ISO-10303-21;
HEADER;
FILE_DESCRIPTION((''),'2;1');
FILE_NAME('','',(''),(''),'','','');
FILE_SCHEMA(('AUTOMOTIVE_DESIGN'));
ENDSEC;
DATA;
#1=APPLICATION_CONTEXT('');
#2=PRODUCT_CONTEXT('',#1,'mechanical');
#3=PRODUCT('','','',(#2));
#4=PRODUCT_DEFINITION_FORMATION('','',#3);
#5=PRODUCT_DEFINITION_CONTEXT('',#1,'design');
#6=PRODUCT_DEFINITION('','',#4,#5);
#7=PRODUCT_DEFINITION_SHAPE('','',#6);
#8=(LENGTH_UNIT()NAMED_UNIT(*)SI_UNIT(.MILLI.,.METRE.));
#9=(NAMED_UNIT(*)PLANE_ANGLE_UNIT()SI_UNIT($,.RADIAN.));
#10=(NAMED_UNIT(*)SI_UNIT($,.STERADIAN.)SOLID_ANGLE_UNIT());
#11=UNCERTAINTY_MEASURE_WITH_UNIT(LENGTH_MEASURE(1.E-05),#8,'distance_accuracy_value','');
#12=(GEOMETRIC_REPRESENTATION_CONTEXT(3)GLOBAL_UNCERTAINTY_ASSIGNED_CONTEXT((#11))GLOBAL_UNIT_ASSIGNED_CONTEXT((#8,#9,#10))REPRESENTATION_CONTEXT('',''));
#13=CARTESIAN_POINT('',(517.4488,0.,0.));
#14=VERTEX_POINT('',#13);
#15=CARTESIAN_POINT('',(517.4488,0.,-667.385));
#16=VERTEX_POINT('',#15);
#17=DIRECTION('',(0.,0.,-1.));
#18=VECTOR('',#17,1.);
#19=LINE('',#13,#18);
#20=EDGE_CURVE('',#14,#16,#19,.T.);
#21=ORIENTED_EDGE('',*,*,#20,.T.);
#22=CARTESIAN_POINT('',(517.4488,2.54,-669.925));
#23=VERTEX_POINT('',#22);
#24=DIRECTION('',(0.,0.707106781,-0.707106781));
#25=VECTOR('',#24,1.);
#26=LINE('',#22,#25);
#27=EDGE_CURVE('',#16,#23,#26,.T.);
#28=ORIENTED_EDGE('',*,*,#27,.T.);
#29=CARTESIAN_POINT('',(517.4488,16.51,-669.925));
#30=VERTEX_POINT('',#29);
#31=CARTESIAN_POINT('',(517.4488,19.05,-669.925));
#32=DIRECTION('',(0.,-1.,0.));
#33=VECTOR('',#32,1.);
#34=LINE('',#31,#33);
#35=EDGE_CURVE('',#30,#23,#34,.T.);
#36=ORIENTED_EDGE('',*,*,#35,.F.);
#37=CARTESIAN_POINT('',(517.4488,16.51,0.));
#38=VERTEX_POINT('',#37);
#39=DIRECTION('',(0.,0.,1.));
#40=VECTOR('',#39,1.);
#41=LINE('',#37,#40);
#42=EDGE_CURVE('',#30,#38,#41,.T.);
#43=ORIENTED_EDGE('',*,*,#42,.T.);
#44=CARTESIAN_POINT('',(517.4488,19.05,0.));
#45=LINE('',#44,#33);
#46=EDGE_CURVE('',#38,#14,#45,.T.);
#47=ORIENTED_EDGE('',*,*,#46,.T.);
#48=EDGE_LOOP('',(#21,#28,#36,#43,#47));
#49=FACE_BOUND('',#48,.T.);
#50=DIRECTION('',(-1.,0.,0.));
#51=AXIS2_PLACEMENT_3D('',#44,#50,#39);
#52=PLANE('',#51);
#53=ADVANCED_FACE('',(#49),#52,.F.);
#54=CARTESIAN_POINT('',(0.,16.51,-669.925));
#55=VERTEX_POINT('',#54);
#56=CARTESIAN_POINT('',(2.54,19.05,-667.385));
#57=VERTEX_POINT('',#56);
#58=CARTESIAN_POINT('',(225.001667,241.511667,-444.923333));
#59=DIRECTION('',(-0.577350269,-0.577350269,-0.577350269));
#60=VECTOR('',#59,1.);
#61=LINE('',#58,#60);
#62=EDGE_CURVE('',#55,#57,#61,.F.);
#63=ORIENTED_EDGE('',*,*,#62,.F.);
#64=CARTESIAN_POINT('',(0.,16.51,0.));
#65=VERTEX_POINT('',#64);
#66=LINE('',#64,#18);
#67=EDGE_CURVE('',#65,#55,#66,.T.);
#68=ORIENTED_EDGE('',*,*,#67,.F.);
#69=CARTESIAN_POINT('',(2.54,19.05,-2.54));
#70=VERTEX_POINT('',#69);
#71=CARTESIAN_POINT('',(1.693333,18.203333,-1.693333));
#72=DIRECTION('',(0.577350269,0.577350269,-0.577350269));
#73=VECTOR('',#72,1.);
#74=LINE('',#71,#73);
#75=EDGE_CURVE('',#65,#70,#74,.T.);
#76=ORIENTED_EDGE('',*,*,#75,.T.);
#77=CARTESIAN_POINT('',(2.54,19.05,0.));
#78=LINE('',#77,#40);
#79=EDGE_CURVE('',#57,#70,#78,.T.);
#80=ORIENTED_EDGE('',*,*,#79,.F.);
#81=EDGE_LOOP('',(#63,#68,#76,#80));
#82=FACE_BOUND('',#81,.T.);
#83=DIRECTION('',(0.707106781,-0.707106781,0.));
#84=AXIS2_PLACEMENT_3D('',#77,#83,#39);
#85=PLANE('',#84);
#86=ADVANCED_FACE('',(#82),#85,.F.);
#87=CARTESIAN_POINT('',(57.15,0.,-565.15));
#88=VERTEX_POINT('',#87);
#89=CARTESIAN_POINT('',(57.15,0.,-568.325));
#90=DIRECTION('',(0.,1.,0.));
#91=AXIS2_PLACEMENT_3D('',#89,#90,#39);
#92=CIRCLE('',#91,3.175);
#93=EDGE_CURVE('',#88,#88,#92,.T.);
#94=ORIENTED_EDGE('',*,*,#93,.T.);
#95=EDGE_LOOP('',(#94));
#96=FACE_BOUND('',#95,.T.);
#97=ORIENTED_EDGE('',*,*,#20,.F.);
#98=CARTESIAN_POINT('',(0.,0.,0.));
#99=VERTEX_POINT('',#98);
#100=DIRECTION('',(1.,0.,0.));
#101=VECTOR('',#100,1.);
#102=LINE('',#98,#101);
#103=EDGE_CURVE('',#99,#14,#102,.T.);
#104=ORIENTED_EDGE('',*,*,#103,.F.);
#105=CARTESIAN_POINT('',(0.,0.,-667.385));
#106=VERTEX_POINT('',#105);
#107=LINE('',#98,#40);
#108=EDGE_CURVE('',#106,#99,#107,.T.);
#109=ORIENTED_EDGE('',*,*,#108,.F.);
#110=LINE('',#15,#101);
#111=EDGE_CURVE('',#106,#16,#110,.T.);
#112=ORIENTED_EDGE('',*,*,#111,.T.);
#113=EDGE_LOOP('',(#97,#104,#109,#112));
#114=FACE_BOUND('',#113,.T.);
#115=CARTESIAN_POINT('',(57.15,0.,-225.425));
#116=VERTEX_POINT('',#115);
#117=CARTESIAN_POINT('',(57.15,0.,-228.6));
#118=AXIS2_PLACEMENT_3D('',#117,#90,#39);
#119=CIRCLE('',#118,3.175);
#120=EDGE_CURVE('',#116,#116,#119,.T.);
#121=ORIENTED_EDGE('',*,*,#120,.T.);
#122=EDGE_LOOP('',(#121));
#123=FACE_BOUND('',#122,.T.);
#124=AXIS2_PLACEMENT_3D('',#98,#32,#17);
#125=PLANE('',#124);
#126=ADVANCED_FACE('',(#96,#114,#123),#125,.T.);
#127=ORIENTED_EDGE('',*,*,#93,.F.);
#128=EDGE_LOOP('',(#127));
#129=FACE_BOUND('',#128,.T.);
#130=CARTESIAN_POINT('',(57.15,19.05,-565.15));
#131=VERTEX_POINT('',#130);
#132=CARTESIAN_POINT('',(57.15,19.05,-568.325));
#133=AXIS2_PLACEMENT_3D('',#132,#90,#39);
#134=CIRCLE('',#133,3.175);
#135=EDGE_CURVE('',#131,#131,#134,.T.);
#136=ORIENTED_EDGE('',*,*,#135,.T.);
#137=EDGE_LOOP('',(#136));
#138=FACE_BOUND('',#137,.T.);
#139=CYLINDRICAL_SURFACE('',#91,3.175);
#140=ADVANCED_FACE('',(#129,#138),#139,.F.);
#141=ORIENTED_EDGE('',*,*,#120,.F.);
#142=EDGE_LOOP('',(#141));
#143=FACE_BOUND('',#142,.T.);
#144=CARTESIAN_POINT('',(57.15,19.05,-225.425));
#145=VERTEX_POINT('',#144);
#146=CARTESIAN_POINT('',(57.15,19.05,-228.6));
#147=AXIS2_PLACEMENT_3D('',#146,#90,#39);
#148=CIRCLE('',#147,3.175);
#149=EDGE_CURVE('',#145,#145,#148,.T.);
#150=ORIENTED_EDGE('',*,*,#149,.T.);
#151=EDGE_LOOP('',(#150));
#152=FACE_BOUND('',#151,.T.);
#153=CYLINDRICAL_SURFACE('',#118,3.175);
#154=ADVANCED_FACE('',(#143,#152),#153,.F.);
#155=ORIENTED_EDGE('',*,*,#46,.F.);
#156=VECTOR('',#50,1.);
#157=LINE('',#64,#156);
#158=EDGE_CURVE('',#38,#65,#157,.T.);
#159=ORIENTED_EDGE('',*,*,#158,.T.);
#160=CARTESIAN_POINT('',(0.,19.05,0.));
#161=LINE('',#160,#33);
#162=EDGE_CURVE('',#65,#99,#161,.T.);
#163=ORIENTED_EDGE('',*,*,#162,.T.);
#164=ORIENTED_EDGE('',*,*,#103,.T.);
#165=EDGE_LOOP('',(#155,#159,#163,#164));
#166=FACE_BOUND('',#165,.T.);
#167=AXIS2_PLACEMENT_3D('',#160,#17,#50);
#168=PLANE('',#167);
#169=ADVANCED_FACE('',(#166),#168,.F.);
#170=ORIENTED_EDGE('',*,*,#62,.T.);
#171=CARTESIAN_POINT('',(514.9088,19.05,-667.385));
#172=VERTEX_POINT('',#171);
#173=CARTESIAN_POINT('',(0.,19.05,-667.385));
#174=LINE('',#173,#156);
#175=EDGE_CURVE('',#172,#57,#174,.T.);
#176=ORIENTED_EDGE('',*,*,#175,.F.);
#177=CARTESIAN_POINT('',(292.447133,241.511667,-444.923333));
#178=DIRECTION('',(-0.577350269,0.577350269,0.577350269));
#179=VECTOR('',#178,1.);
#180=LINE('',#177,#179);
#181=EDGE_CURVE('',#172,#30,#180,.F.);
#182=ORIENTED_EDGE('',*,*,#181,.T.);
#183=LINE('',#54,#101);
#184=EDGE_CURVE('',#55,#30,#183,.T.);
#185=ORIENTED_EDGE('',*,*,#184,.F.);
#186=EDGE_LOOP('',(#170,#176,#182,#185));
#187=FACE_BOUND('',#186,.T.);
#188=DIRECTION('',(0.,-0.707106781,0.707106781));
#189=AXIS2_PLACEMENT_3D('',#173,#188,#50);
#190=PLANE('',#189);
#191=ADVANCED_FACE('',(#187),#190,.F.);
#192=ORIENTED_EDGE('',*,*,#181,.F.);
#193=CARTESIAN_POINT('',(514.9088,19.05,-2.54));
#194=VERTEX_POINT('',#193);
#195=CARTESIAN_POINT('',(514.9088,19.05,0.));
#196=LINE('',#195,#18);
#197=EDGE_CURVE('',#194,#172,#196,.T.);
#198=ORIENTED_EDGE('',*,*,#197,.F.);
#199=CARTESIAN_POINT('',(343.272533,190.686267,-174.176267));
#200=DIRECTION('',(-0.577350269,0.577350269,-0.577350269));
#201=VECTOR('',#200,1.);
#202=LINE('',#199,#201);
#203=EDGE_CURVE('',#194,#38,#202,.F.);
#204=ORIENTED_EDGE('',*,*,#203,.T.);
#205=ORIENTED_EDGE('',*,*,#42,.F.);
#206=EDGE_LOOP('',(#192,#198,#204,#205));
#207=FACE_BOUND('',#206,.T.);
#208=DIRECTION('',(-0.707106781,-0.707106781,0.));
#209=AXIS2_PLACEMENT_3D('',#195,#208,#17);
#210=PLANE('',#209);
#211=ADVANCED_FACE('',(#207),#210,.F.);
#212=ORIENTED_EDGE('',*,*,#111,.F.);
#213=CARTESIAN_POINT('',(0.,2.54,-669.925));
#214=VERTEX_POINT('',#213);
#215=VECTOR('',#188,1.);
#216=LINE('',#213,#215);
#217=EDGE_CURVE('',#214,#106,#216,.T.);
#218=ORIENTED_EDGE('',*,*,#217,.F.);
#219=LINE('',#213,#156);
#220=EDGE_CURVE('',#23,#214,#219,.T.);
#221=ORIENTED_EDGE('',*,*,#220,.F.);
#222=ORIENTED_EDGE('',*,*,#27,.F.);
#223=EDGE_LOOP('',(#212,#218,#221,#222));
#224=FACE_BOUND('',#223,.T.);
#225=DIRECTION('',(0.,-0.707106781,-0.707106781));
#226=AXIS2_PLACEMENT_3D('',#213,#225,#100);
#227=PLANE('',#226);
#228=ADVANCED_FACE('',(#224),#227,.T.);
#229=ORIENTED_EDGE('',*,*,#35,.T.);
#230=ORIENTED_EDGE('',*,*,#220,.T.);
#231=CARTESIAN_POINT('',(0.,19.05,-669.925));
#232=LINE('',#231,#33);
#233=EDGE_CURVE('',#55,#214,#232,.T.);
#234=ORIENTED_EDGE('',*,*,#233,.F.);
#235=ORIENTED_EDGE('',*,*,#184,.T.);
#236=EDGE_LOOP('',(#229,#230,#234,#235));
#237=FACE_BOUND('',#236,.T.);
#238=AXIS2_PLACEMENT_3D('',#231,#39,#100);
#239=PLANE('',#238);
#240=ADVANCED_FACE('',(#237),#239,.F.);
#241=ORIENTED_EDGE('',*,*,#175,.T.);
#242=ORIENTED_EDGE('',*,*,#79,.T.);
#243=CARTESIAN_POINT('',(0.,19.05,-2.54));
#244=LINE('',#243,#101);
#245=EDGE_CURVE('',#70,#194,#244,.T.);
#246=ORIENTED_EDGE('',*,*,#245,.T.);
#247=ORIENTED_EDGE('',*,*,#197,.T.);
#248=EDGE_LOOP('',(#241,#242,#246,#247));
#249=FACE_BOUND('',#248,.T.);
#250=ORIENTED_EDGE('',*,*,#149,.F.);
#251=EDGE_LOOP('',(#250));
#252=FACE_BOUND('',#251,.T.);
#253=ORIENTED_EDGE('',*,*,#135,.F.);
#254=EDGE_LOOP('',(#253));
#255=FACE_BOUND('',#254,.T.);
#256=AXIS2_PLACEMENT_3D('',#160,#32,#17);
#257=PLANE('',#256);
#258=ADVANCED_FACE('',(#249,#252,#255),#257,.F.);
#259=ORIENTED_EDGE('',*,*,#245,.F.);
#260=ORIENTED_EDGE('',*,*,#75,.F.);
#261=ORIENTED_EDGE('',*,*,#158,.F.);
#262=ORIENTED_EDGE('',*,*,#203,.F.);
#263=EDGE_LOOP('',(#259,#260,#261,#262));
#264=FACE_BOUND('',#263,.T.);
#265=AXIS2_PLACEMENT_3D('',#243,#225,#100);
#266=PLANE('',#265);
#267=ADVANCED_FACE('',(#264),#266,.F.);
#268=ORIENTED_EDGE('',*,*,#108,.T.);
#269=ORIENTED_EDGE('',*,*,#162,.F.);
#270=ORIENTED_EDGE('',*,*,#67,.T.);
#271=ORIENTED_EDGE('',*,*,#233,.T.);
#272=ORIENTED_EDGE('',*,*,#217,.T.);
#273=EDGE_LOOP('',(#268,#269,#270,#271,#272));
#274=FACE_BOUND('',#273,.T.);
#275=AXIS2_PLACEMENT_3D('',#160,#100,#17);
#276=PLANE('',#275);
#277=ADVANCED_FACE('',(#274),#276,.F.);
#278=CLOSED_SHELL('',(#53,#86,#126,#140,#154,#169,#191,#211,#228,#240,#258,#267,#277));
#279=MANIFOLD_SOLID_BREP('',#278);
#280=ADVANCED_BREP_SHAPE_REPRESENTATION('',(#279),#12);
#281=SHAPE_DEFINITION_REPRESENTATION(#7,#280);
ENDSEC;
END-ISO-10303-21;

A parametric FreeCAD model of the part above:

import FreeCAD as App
import Part
import Sketcher
from FreeCAD import Vector
Q = App.Units.Quantity


def edges_at(feature, points):
    """Names of the edges that pass closest to the given points."""
    edges = feature.Shape.Edges
    near = lambda p: min(range(len(edges)), key=lambda i: edges[i].distToShape(Part.Vertex(*p))[0])
    return sorted({f"Edge{near(p) + 1}" for p in points})

doc = App.newDocument("Part")
body = doc.addObject("PartDesign::Body", "Body")

sketch1 = body.newObject("Sketcher::SketchObject", "Sketch")
sketch1.AttachmentSupport = (doc.getObject("XZ_Plane"), [""])
sketch1.MapMode = "FlatFace"
sketch1.addGeometry(Part.LineSegment(Vector(0, -669.925, 0), Vector(0, 0, 0)), False)
sketch1.addGeometry(Part.LineSegment(Vector(0, 0, 0), Vector(517.4488, 0, 0)), False)
sketch1.addGeometry(Part.LineSegment(Vector(517.4488, 0, 0), Vector(517.4488, -669.925, 0)), False)
sketch1.addGeometry(Part.LineSegment(Vector(517.4488, -669.925, 0), Vector(0, -669.925, 0)), False)
sketch1.addConstraint(Sketcher.Constraint("Coincident", 0, 2, 1, 1))
sketch1.addConstraint(Sketcher.Constraint("Coincident", 1, 2, 2, 1))
sketch1.addConstraint(Sketcher.Constraint("Coincident", 2, 2, 3, 1))
sketch1.addConstraint(Sketcher.Constraint("Coincident", 3, 2, 0, 1))
sketch1.addConstraint(Sketcher.Constraint("Vertical", 0))
sketch1.addConstraint(Sketcher.Constraint("Horizontal", 1))
sketch1.addConstraint(Sketcher.Constraint("Vertical", 2))
sketch1.addConstraint(Sketcher.Constraint("Horizontal", 3))
sketch1.addConstraint(Sketcher.Constraint("Coincident", 0, 2, -1, 1))
sketch1.addConstraint(Sketcher.Constraint("DistanceX", 1, 1, 1, 2, Q("20.372 in")))
sketch1.addConstraint(Sketcher.Constraint("DistanceY", 0, 1, 0, 2, Q("26.375 in")))
pad1 = body.newObject("PartDesign::Pad", "Pad")
pad1.Profile = sketch1
pad1.Length = Q("0.75 in")
pad1.Reversed = True
doc.recompute()

chamfer = body.newObject("PartDesign::Chamfer", "Chamfer")
chamfer.Base = (pad1, edges_at(pad1, [
    (517.449, 19.05, -334.962),
    (258.724, 19.05, -669.925),
    (0, 19.05, -334.962),
    (258.724, 19.05, 0),
]))
chamfer.Size = Q("0.1 in")
doc.recompute()

chamfer2 = body.newObject("PartDesign::Chamfer", "Chamfer001")
chamfer2.Base = (chamfer, edges_at(chamfer, [(258.724, 0, -669.925)]))
chamfer2.Size = Q("0.1 in")

sketch2 = body.newObject("Sketcher::SketchObject", "Sketch001")
sketch2.AttachmentSupport = (doc.getObject("XZ_Plane"), [""])
sketch2.MapMode = "FlatFace"
sketch2.AttachmentOffset = App.Placement(Vector(0, 0, -0.75 * 25.4), App.Rotation())
sketch2.addGeometry(Part.Circle(Vector(57.15, -568.325, 0), Vector(0, 0, 1), 3.175), False)
sketch2.addGeometry(Part.Circle(Vector(57.15, -228.6, 0), Vector(0, 0, 1), 3.175), False)
sketch2.addGeometry(Part.Circle(Vector(666.75, -568.325, 0), Vector(0, 0, 1), 3.175), False)
sketch2.addGeometry(Part.Circle(Vector(666.75, -228.6, 0), Vector(0, 0, 1), 3.175), False)
sketch2.addConstraint(Sketcher.Constraint("Equal", 0, 1))
sketch2.addConstraint(Sketcher.Constraint("Equal", 1, 2))
sketch2.addConstraint(Sketcher.Constraint("Equal", 2, 3))
sketch2.addConstraint(Sketcher.Constraint("Horizontal", 0, 3, 2, 3))
sketch2.addConstraint(Sketcher.Constraint("Horizontal", 1, 3, 3, 3))
sketch2.addConstraint(Sketcher.Constraint("Vertical", 0, 3, 1, 3))
sketch2.addConstraint(Sketcher.Constraint("Vertical", 2, 3, 3, 3))
sketch2.addConstraint(Sketcher.Constraint("Diameter", 0, Q("0.25 in")))
sketch2.addConstraint(Sketcher.Constraint("DistanceY", 1, 3, -1, 1, Q("9 in")))
sketch2.addConstraint(Sketcher.Constraint("DistanceX", 0, 3, 2, 3, Q("24 in")))
sketch2.addConstraint(Sketcher.Constraint("DistanceX", -1, 1, 0, 3, Q("2.25 in")))
sketch2.addConstraint(Sketcher.Constraint("DistanceY", 0, 3, -1, 1, Q("22.375 in")))
pocket1 = body.newObject("PartDesign::Pocket", "Pocket")
pocket1.Profile = sketch2
pocket1.Type = "ThroughAll"
pocket1.Reversed = True

doc.recompute()
